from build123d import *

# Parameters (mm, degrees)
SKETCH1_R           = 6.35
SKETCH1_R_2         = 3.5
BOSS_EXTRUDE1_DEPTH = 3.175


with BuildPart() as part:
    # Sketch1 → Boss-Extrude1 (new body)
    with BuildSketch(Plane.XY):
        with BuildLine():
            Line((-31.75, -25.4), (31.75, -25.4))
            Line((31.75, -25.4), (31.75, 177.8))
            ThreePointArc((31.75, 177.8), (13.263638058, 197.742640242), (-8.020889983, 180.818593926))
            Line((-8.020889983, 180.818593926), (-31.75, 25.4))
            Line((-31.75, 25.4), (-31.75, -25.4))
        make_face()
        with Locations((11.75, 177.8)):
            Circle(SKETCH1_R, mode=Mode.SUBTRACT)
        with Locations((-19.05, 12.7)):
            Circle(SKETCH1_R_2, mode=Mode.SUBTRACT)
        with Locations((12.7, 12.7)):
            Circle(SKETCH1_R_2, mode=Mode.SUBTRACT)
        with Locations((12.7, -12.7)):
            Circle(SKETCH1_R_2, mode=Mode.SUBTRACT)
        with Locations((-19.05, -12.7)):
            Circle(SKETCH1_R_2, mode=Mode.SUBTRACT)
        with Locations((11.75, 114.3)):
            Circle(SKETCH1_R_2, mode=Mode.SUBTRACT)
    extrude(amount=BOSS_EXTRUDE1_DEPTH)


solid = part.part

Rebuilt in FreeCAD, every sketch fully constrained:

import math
import FreeCAD as App
import Part
import Sketcher
Q = App.Units.Quantity

doc = App.newDocument("Part")
body = doc.addObject("PartDesign::Body", "Body")

# Sketch on XY plane
sketch1 = doc.addObject("Sketcher::SketchObject", "Sketch")
body.addObject(sketch1)
sketch1.AttachmentSupport = (doc.XY_Plane, [""])
sketch1.MapMode = "FlatFace"
sketch1.addGeometry(Part.LineSegment(App.Vector(-31.75, -25.4, 0), App.Vector(31.75, -25.4, 0)), False)
sketch1.addGeometry(Part.LineSegment(App.Vector(31.75, -25.4, 0), App.Vector(31.75, 177.8, 0)), False)
sketch1.addGeometry(Part.ArcOfCircle(Part.Circle(App.Vector(11.75, 177.8, 0), App.Vector(0, 0, 1), 20), math.radians(0), math.radians(171.319192)), False)
sketch1.addGeometry(Part.LineSegment(App.Vector(-8.02089, 180.818594, 0), App.Vector(-31.75, 25.4, 0)), False)
sketch1.addGeometry(Part.LineSegment(App.Vector(-31.75, 25.4, 0), App.Vector(-31.75, -25.4, 0)), False)
sketch1.addGeometry(Part.Circle(App.Vector(-19.05, -12.7, 0), App.Vector(0, 0, 1), 3.5), False)
sketch1.addGeometry(Part.Circle(App.Vector(-19.05, 12.7, 0), App.Vector(0, 0, 1), 3.5), False)
sketch1.addGeometry(Part.Circle(App.Vector(12.7, -12.7, 0), App.Vector(0, 0, 1), 3.5), False)
sketch1.addGeometry(Part.Circle(App.Vector(12.7, 12.7, 0), App.Vector(0, 0, 1), 3.5), False)
sketch1.addGeometry(Part.Circle(App.Vector(11.75, 114.3, 0), App.Vector(0, 0, 1), 3.5), False)
sketch1.addGeometry(Part.Circle(App.Vector(11.75, 177.8, 0), App.Vector(0, 0, 1), 6.35), False)
sketch1.addConstraint(Sketcher.Constraint("Coincident", 0, 2, 1, 1))
sketch1.addConstraint(Sketcher.Constraint("Tangent", 1, 2, 2, 1))
sketch1.addConstraint(Sketcher.Constraint("Tangent", 2, 2, 3, 1))
sketch1.addConstraint(Sketcher.Constraint("Coincident", 3, 2, 4, 1))
sketch1.addConstraint(Sketcher.Constraint("Coincident", 4, 2, 0, 1))
sketch1.addConstraint(Sketcher.Constraint("Horizontal", 0))
sketch1.addConstraint(Sketcher.Constraint("Vertical", 1))
sketch1.addConstraint(Sketcher.Constraint("Vertical", 4))
sketch1.addConstraint(Sketcher.Constraint("Coincident", 10, 3, 2, 3))
sketch1.addConstraint(Sketcher.Constraint("Equal", 5, 6))
sketch1.addConstraint(Sketcher.Constraint("Equal", 6, 7))
sketch1.addConstraint(Sketcher.Constraint("Equal", 7, 8))
sketch1.addConstraint(Sketcher.Constraint("Equal", 8, 9))
sketch1.addConstraint(Sketcher.Constraint("Symmetric", 0, 2, 3, 2, -1, 1))
sketch1.addConstraint(Sketcher.Constraint("Symmetric", 5, 3, 6, 3, -1))
sketch1.addConstraint(Sketcher.Constraint("Symmetric", 7, 3, 8, 3, -1))
sketch1.addConstraint(Sketcher.Constraint("Horizontal", 5, 3, 7, 3))
sketch1.addConstraint(Sketcher.Constraint("Vertical", 2, 3, 9, 3))
sketch1.addConstraint(Sketcher.Constraint("Diameter", 10, Q("0.5 in")))
sketch1.addConstraint(Sketcher.Constraint("DistanceY", 1, 1, 1, 2, Q("8 in")))
sketch1.addConstraint(Sketcher.Constraint("DistanceY", 4, 2, 4, 1, Q("2 in")))
sketch1.addConstraint(Sketcher.Constraint("DistanceX", 0, 1, 0, 2, Q("2.5 in")))
sketch1.addConstraint(Sketcher.Constraint("DistanceY", 5, 3, 6, 3, Q("1 in")))
sketch1.addConstraint(Sketcher.Constraint("DistanceY", 8, 3, 9, 3, Q("4 in")))
sketch1.addConstraint(Sketcher.Constraint("DistanceX", 5, 3, 0, 2, Q("2 in")))
sketch1.addConstraint(Sketcher.Constraint("DistanceX", -1, 1, 7, 3, Q("0.5 in")))
sketch1.addConstraint(Sketcher.Constraint("Diameter", 5, Q("7 mm")))
sketch1.addConstraint(Sketcher.Constraint("Radius", 2, Q("20 mm")))
pad1 = doc.addObject("PartDesign::Pad", "Pad")
body.addObject(pad1)
pad1.Profile = sketch1
pad1.Length = Q("0.125 in")

doc.recompute()
